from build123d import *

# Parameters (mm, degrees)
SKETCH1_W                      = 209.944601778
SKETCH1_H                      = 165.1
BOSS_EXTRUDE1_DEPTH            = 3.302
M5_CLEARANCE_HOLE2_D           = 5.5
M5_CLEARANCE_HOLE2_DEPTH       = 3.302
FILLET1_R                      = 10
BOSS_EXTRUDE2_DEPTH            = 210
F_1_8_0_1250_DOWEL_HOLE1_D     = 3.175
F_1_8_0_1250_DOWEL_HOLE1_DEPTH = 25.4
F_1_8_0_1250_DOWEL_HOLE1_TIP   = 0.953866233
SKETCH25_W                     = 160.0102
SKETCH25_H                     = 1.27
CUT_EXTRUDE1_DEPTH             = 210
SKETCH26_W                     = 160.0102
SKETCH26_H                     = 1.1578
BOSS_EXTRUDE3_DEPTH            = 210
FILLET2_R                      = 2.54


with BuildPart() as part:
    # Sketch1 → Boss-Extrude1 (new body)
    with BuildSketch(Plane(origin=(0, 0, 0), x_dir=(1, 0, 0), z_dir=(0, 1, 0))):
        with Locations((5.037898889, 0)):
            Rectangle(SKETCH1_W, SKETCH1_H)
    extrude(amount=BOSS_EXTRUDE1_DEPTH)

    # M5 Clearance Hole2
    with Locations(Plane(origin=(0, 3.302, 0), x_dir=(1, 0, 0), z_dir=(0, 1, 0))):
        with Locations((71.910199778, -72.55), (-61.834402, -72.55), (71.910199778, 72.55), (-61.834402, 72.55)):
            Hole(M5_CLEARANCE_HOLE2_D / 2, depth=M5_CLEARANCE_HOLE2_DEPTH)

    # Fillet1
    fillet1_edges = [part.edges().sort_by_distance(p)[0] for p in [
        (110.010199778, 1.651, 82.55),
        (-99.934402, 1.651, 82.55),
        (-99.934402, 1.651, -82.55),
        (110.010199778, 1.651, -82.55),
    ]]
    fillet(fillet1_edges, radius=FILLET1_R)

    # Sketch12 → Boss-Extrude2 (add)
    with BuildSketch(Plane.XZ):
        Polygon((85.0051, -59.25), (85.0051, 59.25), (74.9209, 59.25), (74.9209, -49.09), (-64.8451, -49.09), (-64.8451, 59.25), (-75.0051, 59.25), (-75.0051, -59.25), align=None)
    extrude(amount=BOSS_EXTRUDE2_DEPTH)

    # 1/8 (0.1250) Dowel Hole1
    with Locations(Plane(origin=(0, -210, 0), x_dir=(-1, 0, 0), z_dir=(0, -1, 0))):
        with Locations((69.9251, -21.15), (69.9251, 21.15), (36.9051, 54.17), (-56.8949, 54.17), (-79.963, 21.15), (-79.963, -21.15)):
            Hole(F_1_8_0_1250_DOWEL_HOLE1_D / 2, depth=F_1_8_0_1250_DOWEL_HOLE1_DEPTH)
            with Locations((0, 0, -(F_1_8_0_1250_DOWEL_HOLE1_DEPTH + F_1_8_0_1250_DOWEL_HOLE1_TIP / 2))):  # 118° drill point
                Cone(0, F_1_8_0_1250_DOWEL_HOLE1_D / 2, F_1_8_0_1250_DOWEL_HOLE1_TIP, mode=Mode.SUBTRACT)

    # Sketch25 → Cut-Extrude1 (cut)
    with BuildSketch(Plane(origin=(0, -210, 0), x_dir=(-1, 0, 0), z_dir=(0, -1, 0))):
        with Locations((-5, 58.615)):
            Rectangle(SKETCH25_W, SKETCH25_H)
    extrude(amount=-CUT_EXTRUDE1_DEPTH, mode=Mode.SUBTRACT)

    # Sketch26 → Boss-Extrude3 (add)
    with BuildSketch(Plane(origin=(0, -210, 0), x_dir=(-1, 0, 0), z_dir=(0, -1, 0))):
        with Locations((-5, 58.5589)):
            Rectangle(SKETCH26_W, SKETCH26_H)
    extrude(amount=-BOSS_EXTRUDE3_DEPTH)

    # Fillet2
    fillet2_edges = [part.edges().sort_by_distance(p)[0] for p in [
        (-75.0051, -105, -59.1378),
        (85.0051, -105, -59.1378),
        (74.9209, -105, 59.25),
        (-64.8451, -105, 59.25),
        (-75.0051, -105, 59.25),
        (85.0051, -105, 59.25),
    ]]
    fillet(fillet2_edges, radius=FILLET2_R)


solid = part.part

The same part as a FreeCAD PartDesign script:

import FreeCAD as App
import Part
import Sketcher

V = App.Vector
Q = App.Units.Quantity


def edges_at(feature, points):
    """Names of the edges that pass closest to the given points."""
    edges = feature.Shape.Edges
    near = lambda p: min(range(len(edges)), key=lambda i: edges[i].distToShape(Part.Vertex(*p))[0])
    return sorted({f"Edge{near(p) + 1}" for p in points})


def add_polygon(sketch, points):
    """Adds a closed chain of lines whose ends are joined by coincident constraints."""
    first, n = sketch.GeometryCount, len(points)
    for a, b in zip(points, points[1:] + points[:1]):
        sketch.addGeometry(Part.LineSegment(App.Vector(*a, 0), App.Vector(*b, 0)), False)
    for i in range(n):
        sketch.addConstraint(Sketcher.Constraint("Coincident", first + i, 2, first + (i + 1) % n, 1))

doc = App.newDocument("Part")
body = doc.addObject("PartDesign::Body", "Body")

sketch1 = body.newObject("Sketcher::SketchObject", "Sketch")
sketch1.AttachmentSupport = (doc.getObject("XZ_Plane"), [""])
sketch1.MapMode = "FlatFace"
add_polygon(sketch1, [(-99.934402, -82.55), (-99.934402, 82.55), (110.0102, 82.55), (110.0102, -82.55)])
sketch1.addConstraint([
    Sketcher.Constraint("Vertical", 0),
    Sketcher.Constraint("Horizontal", 1),
    Sketcher.Constraint("Vertical", 2),
    Sketcher.Constraint("Horizontal", 3),
    Sketcher.Constraint("DistanceY", 0, 1, 0, 2, Q("6.5 in")),
    Sketcher.Constraint("DistanceY", -1, 1, 0, 2, Q("3.25 in")),
    Sketcher.Constraint("DistanceX", 1, 1, 1, 2, Q("209.944602 mm")),
    Sketcher.Constraint("DistanceX", -1, 1, 1, 2, Q("110.0102 mm")),
])
pad1 = body.newObject("PartDesign::Pad", "Pad")
pad1.Profile = sketch1
pad1.Length = Q("0.13 in")
pad1.Reversed = True

sketch2 = body.newObject("Sketcher::SketchObject", "Sketch001")
sketch2.AttachmentSupport = (doc.getObject("XZ_Plane"), [""])
sketch2.MapMode = "FlatFace"
sketch2.AttachmentOffset = App.Placement(V(0, 0, -0.13 * 25.4), App.Rotation())
sketch2.addGeometry([
    Part.Circle(V(71.9102, 72.55, 0), V(0, 0, 1), 2.75),
    Part.Circle(V(-61.834402, 72.55, 0), V(0, 0, 1), 2.75),
    Part.Circle(V(71.9102, -72.55, 0), V(0, 0, 1), 2.75),
    Part.Circle(V(-61.834402, -72.55, 0), V(0, 0, 1), 2.75),
], False)
sketch2.addConstraint([
    Sketcher.Constraint("Equal", 0, 1),
    Sketcher.Constraint("Equal", 1, 2),
    Sketcher.Constraint("Equal", 2, 3),
    Sketcher.Constraint("Symmetric", 0, 3, 2, 3, -1),
    Sketcher.Constraint("Symmetric", 1, 3, 3, 3, -1),
    Sketcher.Constraint("Horizontal", 0, 3, 1, 3),
    Sketcher.Constraint("Diameter", 0, Q("5.5 mm")),
    Sketcher.Constraint("DistanceX", -1, 1, 0, 3, Q("71.9102 mm")),
    Sketcher.Constraint("DistanceY", -1, 1, 0, 3, Q("72.55 mm")),
    Sketcher.Constraint("DistanceX", 1, 3, -1, 1, Q("61.834402 mm")),
])
doc.recompute()
hole = body.newObject("PartDesign::Hole", "Hole")
hole.Profile = sketch2
hole.ThreadType = "None"
hole.Diameter = 5.5
hole.DepthType = "Dimension"
hole.Depth = Q("0.13 in")
hole.DrillPoint = "Flat"
hole.Reversed = True
doc.recompute()

fillet = body.newObject("PartDesign::Fillet", "Fillet")
fillet.Base = (hole, edges_at(hole, [
    (110.01, 1.651, 82.55),
    (-99.934, 1.651, 82.55),
    (-99.934, 1.651, -82.55),
    (110.01, 1.651, -82.55),
]))
fillet.Radius = 10

sketch3 = body.newObject("Sketcher::SketchObject", "Sketch002")
sketch3.AttachmentSupport = (doc.getObject("XZ_Plane"), [""])
sketch3.MapMode = "FlatFace"
add_polygon(sketch3, [(85.0051, -59.25), (85.0051, 59.25), (74.9209, 59.25), (74.9209, -49.09), (-64.8451, -49.09), (-64.8451, 59.25), (-75.0051, 59.25), (-75.0051, -59.25)])
sketch3.addConstraint([
    Sketcher.Constraint("Vertical", 0),
    Sketcher.Constraint("Horizontal", 1),
    Sketcher.Constraint("Vertical", 2),
    Sketcher.Constraint("Horizontal", 3),
    Sketcher.Constraint("Vertical", 4),
    Sketcher.Constraint("Horizontal", 5),
    Sketcher.Constraint("Vertical", 6),
    Sketcher.Constraint("Horizontal", 7),
    Sketcher.Constraint("Horizontal", 1, 2, 4, 2),
    Sketcher.Constraint("DistanceX", 5, 2, 5, 1, Q("0.4 in")),
    Sketcher.Constraint("DistanceY", 6, 2, 3, 2, Q("0.4 in")),
    Sketcher.Constraint("DistanceX", 1, 2, 1, 1, Q("10.0842 mm")),
    Sketcher.Constraint("DistanceX", 3, 2, 3, 1, Q("139.766 mm")),
    Sketcher.Constraint("DistanceY", 0, 1, 0, 2, Q("118.5 mm")),
    Sketcher.Constraint("DistanceX", -1, 1, 0, 2, Q("85.0051 mm")),
    Sketcher.Constraint("DistanceY", -1, 1, 0, 2, Q("59.25 mm")),
])
pad2 = body.newObject("PartDesign::Pad", "Pad001")
pad2.Profile = sketch3
pad2.Length = 210

sketch4 = body.newObject("Sketcher::SketchObject", "Sketch003")
sketch4.AttachmentSupport = (doc.getObject("XZ_Plane"), [""])
sketch4.MapMode = "FlatFace"
sketch4.AttachmentOffset = App.Placement(V(0, 0, 210), App.Rotation())
sketch4.addGeometry([
    Part.Circle(V(-69.9251, 21.15, 0), V(0, 0, 1), 1.5875),
    Part.Circle(V(-69.9251, -21.15, 0), V(0, 0, 1), 1.5875),
    Part.Circle(V(-36.9051, -54.17, 0), V(0, 0, 1), 1.5875),
    Part.Circle(V(56.8949, -54.17, 0), V(0, 0, 1), 1.5875),
    Part.Circle(V(79.963, -21.15, 0), V(0, 0, 1), 1.5875),
    Part.Circle(V(79.963, 21.15, 0), V(0, 0, 1), 1.5875),
], False)
sketch4.addConstraint([
    Sketcher.Constraint("Equal", 0, 1),
    Sketcher.Constraint("Equal", 1, 2),
    Sketcher.Constraint("Equal", 2, 3),
    Sketcher.Constraint("Equal", 3, 4),
    Sketcher.Constraint("Equal", 4, 5),
    Sketcher.Constraint("Symmetric", 0, 3, 1, 3, -1),
    Sketcher.Constraint("Symmetric", 4, 3, 5, 3, -1),
    Sketcher.Constraint("Horizontal", 2, 3, 3, 3),
    Sketcher.Constraint("Horizontal", 1, 3, 4, 3),
    Sketcher.Constraint("Diameter", 0, Q("0.125 in")),
    Sketcher.Constraint("DistanceX", 1, 3, 2, 3, Q("1.3 in")),
    Sketcher.Constraint("DistanceY", 2, 3, 1, 3, Q("1.3 in")),
    Sketcher.Constraint("DistanceX", 0, 3, -1, 1, Q("69.9251 mm")),
    Sketcher.Constraint("DistanceY", -1, 1, 0, 3, Q("21.15 mm")),
    Sketcher.Constraint("DistanceX", -1, 1, 3, 3, Q("56.8949 mm")),
    Sketcher.Constraint("DistanceX", -1, 1, 4, 3, Q("79.963 mm")),
])
doc.recompute()
hole2 = body.newObject("PartDesign::Hole", "Hole001")
hole2.Profile = sketch4
hole2.ThreadType = "None"
hole2.Diameter = Q("0.125 in")
hole2.DepthType = "Dimension"
hole2.Depth = Q("1 in")
hole2.DrillPoint = "Angled"
hole2.DrillPointAngle = 118

sketch5 = body.newObject("Sketcher::SketchObject", "Sketch004")
sketch5.AttachmentSupport = (doc.getObject("XZ_Plane"), [""])
sketch5.MapMode = "FlatFace"
sketch5.AttachmentOffset = App.Placement(V(0, 0, 210), App.Rotation())
add_polygon(sketch5, [(85.0051, -59.25), (85.0051, -57.98), (-75.0051, -57.98), (-75.0051, -59.25)])
sketch5.addConstraint([
    Sketcher.Constraint("Vertical", 0),
    Sketcher.Constraint("Horizontal", 1),
    Sketcher.Constraint("Vertical", 2),
    Sketcher.Constraint("Horizontal", 3),
    Sketcher.Constraint("DistanceY", 0, 1, 0, 2, Q("0.05 in")),
    Sketcher.Constraint("DistanceX", 1, 2, 1, 1, Q("160.0102 mm")),
    Sketcher.Constraint("DistanceX", -1, 1, 0, 2, Q("85.0051 mm")),
    Sketcher.Constraint("DistanceY", 0, 2, -1, 1, Q("57.98 mm")),
])
pocket1 = body.newObject("PartDesign::Pocket", "Pocket")
pocket1.Profile = sketch5
pocket1.Length = 210

sketch6 = body.newObject("Sketcher::SketchObject", "Sketch005")
sketch6.AttachmentSupport = (doc.getObject("XZ_Plane"), [""])
sketch6.MapMode = "FlatFace"
sketch6.AttachmentOffset = App.Placement(V(0, 0, 210), App.Rotation())
add_polygon(sketch6, [(85.0051, -59.1378), (85.0051, -57.98), (-75.0051, -57.98), (-75.0051, -59.1378)])
sketch6.addConstraint([
    Sketcher.Constraint("Vertical", 0),
    Sketcher.Constraint("Horizontal", 1),
    Sketcher.Constraint("Vertical", 2),
    Sketcher.Constraint("Horizontal", 3),
    Sketcher.Constraint("DistanceX", 1, 2, 1, 1, Q("160.0102 mm")),
    Sketcher.Constraint("DistanceY", 0, 1, 0, 2, Q("1.1578 mm")),
    Sketcher.Constraint("DistanceX", -1, 1, 0, 2, Q("85.0051 mm")),
    Sketcher.Constraint("DistanceY", 0, 2, -1, 1, Q("57.98 mm")),
])
pad3 = body.newObject("PartDesign::Pad", "Pad002")
pad3.Profile = sketch6
pad3.Length = 210
pad3.Reversed = True
doc.recompute()

fillet2 = body.newObject("PartDesign::Fillet", "Fillet001")
fillet2.Base = (pad3, edges_at(pad3, [
    (-75.005, -105, -59.138),
    (85.005, -105, -59.138),
    (74.921, -105, 59.25),
    (-64.845, -105, 59.25),
    (-75.005, -105, 59.25),
    (85.005, -105, 59.25),
]))
fillet2.Radius = Q("0.1 in")

doc.recompute()
